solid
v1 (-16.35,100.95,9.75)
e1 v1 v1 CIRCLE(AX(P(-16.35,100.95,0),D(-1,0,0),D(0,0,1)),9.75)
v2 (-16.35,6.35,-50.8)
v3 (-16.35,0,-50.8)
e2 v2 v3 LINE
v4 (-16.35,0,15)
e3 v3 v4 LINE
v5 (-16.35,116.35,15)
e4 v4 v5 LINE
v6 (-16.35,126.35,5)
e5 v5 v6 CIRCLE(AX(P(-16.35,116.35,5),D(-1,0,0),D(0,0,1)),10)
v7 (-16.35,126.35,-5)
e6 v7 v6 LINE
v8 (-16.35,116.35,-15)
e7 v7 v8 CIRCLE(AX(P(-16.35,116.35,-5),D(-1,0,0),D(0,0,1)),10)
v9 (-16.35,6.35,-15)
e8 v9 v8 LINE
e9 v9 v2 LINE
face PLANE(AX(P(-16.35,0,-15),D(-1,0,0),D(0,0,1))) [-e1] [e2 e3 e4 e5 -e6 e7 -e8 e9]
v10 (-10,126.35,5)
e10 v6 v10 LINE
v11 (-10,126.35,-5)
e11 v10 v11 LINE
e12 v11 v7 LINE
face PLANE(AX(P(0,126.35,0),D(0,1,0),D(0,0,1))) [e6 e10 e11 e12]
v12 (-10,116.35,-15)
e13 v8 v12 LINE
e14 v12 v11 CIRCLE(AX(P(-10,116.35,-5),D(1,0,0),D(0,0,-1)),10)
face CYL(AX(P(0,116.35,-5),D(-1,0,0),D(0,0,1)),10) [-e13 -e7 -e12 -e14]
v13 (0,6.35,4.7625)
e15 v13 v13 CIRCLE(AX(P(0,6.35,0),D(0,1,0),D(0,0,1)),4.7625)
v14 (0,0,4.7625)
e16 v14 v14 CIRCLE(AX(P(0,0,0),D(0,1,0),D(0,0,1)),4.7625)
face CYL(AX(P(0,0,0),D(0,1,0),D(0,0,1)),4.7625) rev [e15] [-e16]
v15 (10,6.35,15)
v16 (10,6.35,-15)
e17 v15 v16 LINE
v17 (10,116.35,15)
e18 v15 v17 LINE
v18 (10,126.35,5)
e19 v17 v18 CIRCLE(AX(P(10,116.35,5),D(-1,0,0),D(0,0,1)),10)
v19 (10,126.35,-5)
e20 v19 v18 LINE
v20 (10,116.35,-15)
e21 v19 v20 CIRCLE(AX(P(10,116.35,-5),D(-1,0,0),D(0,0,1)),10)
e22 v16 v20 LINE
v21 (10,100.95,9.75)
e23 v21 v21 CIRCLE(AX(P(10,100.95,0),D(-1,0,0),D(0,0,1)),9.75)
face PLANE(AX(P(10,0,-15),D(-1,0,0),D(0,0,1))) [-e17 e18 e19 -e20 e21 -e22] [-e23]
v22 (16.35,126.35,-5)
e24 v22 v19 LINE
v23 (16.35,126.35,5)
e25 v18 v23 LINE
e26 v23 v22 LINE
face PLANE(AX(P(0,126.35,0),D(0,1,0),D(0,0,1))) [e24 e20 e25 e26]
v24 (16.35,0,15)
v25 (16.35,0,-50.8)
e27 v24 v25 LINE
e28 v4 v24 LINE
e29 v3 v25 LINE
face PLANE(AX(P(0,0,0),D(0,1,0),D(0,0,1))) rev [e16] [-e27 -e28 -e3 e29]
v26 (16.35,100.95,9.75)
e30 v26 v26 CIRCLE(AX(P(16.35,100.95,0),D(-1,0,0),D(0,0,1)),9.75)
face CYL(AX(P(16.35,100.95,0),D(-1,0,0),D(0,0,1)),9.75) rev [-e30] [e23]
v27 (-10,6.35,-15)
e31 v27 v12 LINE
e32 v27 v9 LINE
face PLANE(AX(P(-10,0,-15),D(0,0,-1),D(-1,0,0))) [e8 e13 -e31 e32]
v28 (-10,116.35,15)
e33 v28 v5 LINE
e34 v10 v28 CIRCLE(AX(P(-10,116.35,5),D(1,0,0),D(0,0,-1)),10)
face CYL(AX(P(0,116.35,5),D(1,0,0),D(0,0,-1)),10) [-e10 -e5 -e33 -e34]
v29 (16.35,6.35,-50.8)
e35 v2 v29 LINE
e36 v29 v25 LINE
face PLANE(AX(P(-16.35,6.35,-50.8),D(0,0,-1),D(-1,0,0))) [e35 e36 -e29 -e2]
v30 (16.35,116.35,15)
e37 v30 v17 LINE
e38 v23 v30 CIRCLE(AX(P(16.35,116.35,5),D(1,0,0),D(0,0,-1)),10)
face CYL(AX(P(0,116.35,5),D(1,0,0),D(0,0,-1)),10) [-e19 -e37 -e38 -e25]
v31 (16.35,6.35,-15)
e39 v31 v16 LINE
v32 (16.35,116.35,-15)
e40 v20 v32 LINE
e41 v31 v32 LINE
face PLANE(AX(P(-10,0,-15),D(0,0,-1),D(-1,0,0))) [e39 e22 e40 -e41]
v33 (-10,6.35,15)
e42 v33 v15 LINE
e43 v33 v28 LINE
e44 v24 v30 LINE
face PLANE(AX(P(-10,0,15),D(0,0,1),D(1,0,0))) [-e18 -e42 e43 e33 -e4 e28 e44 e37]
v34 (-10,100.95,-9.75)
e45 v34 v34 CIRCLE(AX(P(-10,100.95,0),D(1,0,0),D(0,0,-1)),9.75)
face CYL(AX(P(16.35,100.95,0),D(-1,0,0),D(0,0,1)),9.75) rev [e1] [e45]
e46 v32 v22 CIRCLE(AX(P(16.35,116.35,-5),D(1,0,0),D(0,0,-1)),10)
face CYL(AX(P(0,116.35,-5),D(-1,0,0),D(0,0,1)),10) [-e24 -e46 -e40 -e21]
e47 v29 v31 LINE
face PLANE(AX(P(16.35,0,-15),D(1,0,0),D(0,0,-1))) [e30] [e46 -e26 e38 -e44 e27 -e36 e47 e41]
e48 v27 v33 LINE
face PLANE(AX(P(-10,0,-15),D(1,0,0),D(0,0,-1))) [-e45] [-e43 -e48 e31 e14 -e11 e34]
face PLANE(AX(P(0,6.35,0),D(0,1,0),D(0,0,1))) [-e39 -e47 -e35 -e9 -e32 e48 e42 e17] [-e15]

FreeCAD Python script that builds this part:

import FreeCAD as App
import Part
import Sketcher

V = App.Vector


def edges_at(feature, points):
    """Names of the edges that pass closest to the given points."""
    edges = feature.Shape.Edges
    near = lambda p: min(range(len(edges)), key=lambda i: edges[i].distToShape(Part.Vertex(*p))[0])
    return sorted({f"Edge{near(p) + 1}" for p in points})

doc = App.newDocument("Part")
params = doc.addObject("Spreadsheet::Sheet", "Params")
for row, (alias, value) in enumerate([
    ("sketch1_diameter", "20 mm"),
    ("pad1_length", "6.35 mm"),
    ("sketch2_width", "20 mm"),
    ("sketch2_height", "30 mm"),
    ("pad2_length", "6.35 mm"),
    ("sketch3_height", "30 mm"),
    ("sketch3_width", "6.35 mm"),
    ("pad3_length", "120 mm"),
    ("pad3_length2", "6.35 mm"),
    ("sketch4_diameter", "19.5 mm"),
    ("fillet_radius", "10 mm"),
    ("sketch6_width", "32.7 mm"),
    ("sketch6_height", "35.8 mm"),
    ("pad4_length", "6.35 mm"),
], start=1):
    params.set(f"A{row}", alias)
    params.set(f"B{row}", "=" + value)
    params.setAlias(f"B{row}", alias)

body = doc.addObject("PartDesign::Body", "Body")

sketch1 = body.newObject("Sketcher::SketchObject", "Sketch")
sketch1.AttachmentSupport = (doc.getObject("XZ_Plane"), [""])
sketch1.MapMode = "FlatFace"
sketch1.addGeometry(Part.Circle(V(0, 0, 0), V(0, 0, 1), 10), False)
sketch1.addConstraint(Sketcher.Constraint("Coincident", 0, 3, -1, 1))
sketch1.addConstraint(Sketcher.Constraint("Diameter", 0, 20.0))
sketch1.setExpression("Constraints[1]", "Params.sketch1_diameter")
pad1 = body.newObject("PartDesign::Pad", "Pad")
pad1.Profile = sketch1
pad1.setExpression("Length", "Params.pad1_length")
pad1.Reversed = True

sketch2 = body.newObject("Sketcher::SketchObject", "Sketch001")
sketch2.AttachmentSupport = (doc.getObject("XZ_Plane"), [""])
sketch2.MapMode = "FlatFace"
sketch2.AttachmentOffset = App.Placement(V(0, 0, -6.35), App.Rotation())
sketch2.addGeometry(Part.LineSegment(V(-10, -15, 0), V(-10, 15, 0)), False)
sketch2.addGeometry(Part.LineSegment(V(-10, 15, 0), V(10, 15, 0)), False)
sketch2.addGeometry(Part.LineSegment(V(10, 15, 0), V(10, -15, 0)), False)
sketch2.addGeometry(Part.LineSegment(V(10, -15, 0), V(-10, -15, 0)), False)
sketch2.addConstraint(Sketcher.Constraint("Coincident", 0, 2, 1, 1))
sketch2.addConstraint(Sketcher.Constraint("Coincident", 1, 2, 2, 1))
sketch2.addConstraint(Sketcher.Constraint("Coincident", 2, 2, 3, 1))
sketch2.addConstraint(Sketcher.Constraint("Coincident", 3, 2, 0, 1))
sketch2.addConstraint(Sketcher.Constraint("Vertical", 0))
sketch2.addConstraint(Sketcher.Constraint("Horizontal", 1))
sketch2.addConstraint(Sketcher.Constraint("Vertical", 2))
sketch2.addConstraint(Sketcher.Constraint("Horizontal", 3))
sketch2.addConstraint(Sketcher.Constraint("Symmetric", 0, 2, 2, 2, -1, 1))
sketch2.addConstraint(Sketcher.Constraint("DistanceX", 1, 1, 1, 2, 20.0))
sketch2.addConstraint(Sketcher.Constraint("DistanceY", 0, 1, 0, 2, 30.0))
sketch2.setExpression("Constraints[9]", "Params.sketch2_width")
sketch2.setExpression("Constraints[10]", "Params.sketch2_height")
pad2 = body.newObject("PartDesign::Pad", "Pad001")
pad2.Profile = sketch2
pad2.setExpression("Length", "Params.pad2_length")

sketch3 = body.newObject("Sketcher::SketchObject", "Sketch002")
sketch3.AttachmentSupport = (doc.getObject("XZ_Plane"), [""])
sketch3.MapMode = "FlatFace"
sketch3.AttachmentOffset = App.Placement(V(0, 0, -6.35), App.Rotation())
sketch3.addGeometry(Part.LineSegment(V(-16.35, -15, 0), V(-16.35, 15, 0)), False)
sketch3.addGeometry(Part.LineSegment(V(-16.35, 15, 0), V(-10, 15, 0)), False)
sketch3.addGeometry(Part.LineSegment(V(-10, 15, 0), V(-10, -15, 0)), False)
sketch3.addGeometry(Part.LineSegment(V(-10, -15, 0), V(-16.35, -15, 0)), False)
sketch3.addGeometry(Part.LineSegment(V(10, -15, 0), V(10, 15, 0)), False)
sketch3.addGeometry(Part.LineSegment(V(10, 15, 0), V(16.35, 15, 0)), False)
sketch3.addGeometry(Part.LineSegment(V(16.35, 15, 0), V(16.35, -15, 0)), False)
sketch3.addGeometry(Part.LineSegment(V(16.35, -15, 0), V(10, -15, 0)), False)
sketch3.addConstraint(Sketcher.Constraint("Coincident", 0, 2, 1, 1))
sketch3.addConstraint(Sketcher.Constraint("Coincident", 1, 2, 2, 1))
sketch3.addConstraint(Sketcher.Constraint("Coincident", 2, 2, 3, 1))
sketch3.addConstraint(Sketcher.Constraint("Coincident", 3, 2, 0, 1))
sketch3.addConstraint(Sketcher.Constraint("Coincident", 4, 2, 5, 1))
sketch3.addConstraint(Sketcher.Constraint("Coincident", 5, 2, 6, 1))
sketch3.addConstraint(Sketcher.Constraint("Coincident", 6, 2, 7, 1))
sketch3.addConstraint(Sketcher.Constraint("Coincident", 7, 2, 4, 1))
sketch3.addConstraint(Sketcher.Constraint("Vertical", 0))
sketch3.addConstraint(Sketcher.Constraint("Horizontal", 1))
sketch3.addConstraint(Sketcher.Constraint("Vertical", 2))
sketch3.addConstraint(Sketcher.Constraint("Horizontal", 3))
sketch3.addConstraint(Sketcher.Constraint("Vertical", 4))
sketch3.addConstraint(Sketcher.Constraint("Horizontal", 5))
sketch3.addConstraint(Sketcher.Constraint("Vertical", 6))
sketch3.addConstraint(Sketcher.Constraint("Horizontal", 7))
sketch3.addConstraint(Sketcher.Constraint("Symmetric", 2, 2, 4, 2, -1, 1))
sketch3.addConstraint(Sketcher.Constraint("Symmetric", 0, 2, 6, 2, -1, 1))
sketch3.addConstraint(Sketcher.Constraint("Horizontal", 1, 2, 4, 2))
sketch3.addConstraint(Sketcher.Constraint("DistanceY", 0, 1, 0, 2, 30.0))
sketch3.addConstraint(Sketcher.Constraint("DistanceX", 1, 2, -1, 1, 10.0))
sketch3.addConstraint(Sketcher.Constraint("DistanceX", 1, 1, 1, 2, 6.35))
sketch3.setExpression("Constraints[19]", "Params.sketch3_height")
sketch3.setExpression("Constraints[21]", "Params.sketch3_width")
pad3 = body.newObject("PartDesign::Pad", "Pad002")
pad3.Profile = sketch3
pad3.Type = "TwoLengths"
pad3.setExpression("Length", "Params.pad3_length")
pad3.setExpression("Length2", "Params.pad3_length2")
pad3.Reversed = True

sketch4 = body.newObject("Sketcher::SketchObject", "Sketch003")
sketch4.AttachmentSupport = (doc.getObject("YZ_Plane"), [""])
sketch4.MapMode = "FlatFace"
sketch4.AttachmentOffset = App.Placement(V(0, 0, -16.35), App.Rotation())
sketch4.addGeometry(Part.Circle(V(100.95, 0, 0), V(0, 0, 1), 9.75), False)
sketch4.addConstraint(Sketcher.Constraint("PointOnObject", 0, 3, -1))
sketch4.addConstraint(Sketcher.Constraint("Diameter", 0, 19.5))
sketch4.addConstraint(Sketcher.Constraint("DistanceX", -1, 1, 0, 3, 100.95))
sketch4.setExpression("Constraints[1]", "Params.sketch4_diameter")
pocket1 = body.newObject("PartDesign::Pocket", "Pocket")
pocket1.Profile = sketch4
pocket1.Type = "ThroughAll"
pocket1.Reversed = True

sketch5 = body.newObject("Sketcher::SketchObject", "Sketch004")
sketch5.AttachmentSupport = (doc.getObject("XZ_Plane"), [""])
sketch5.MapMode = "FlatFace"
sketch5.AttachmentOffset = App.Placement(V(0, 0, -6.35), App.Rotation())
sketch5.addGeometry(Part.Circle(V(0, 0, 0), V(0, 0, 1), 4.7625), False)
sketch5.addConstraint(Sketcher.Constraint("Coincident", 0, 3, -1, 1))
sketch5.addConstraint(Sketcher.Constraint("Diameter", 0, 9.525))
pocket2 = body.newObject("PartDesign::Pocket", "Pocket001")
pocket2.Profile = sketch5
pocket2.Type = "ThroughAll"
pocket2.Reversed = True
doc.recompute()

fillet = body.newObject("PartDesign::Fillet", "Fillet")
fillet.Base = (pocket2, edges_at(pocket2, [
    (13.175, 126.35, -15),
    (13.175, 126.35, 15),
    (-13.175, 126.35, 15),
    (-13.175, 126.35, -15),
]))
fillet.setExpression("Radius", "Params.fillet_radius")

sketch6 = body.newObject("Sketcher::SketchObject", "Sketch005")
sketch6.AttachmentSupport = (doc.getObject("XZ_Plane"), [""])
sketch6.MapMode = "FlatFace"
sketch6.addGeometry(Part.LineSegment(V(-16.35, -15, 0), V(-16.35, -50.8, 0)), False)
sketch6.addGeometry(Part.LineSegment(V(-16.35, -50.8, 0), V(16.35, -50.8, 0)), False)
sketch6.addGeometry(Part.LineSegment(V(16.35, -50.8, 0), V(16.35, -15, 0)), False)
sketch6.addGeometry(Part.LineSegment(V(16.35, -15, 0), V(-16.35, -15, 0)), False)
sketch6.addConstraint(Sketcher.Constraint("Coincident", 0, 2, 1, 1))
sketch6.addConstraint(Sketcher.Constraint("Coincident", 1, 2, 2, 1))
sketch6.addConstraint(Sketcher.Constraint("Coincident", 2, 2, 3, 1))
sketch6.addConstraint(Sketcher.Constraint("Coincident", 3, 2, 0, 1))
sketch6.addConstraint(Sketcher.Constraint("Vertical", 0))
sketch6.addConstraint(Sketcher.Constraint("Horizontal", 1))
sketch6.addConstraint(Sketcher.Constraint("Vertical", 2))
sketch6.addConstraint(Sketcher.Constraint("Horizontal", 3))
sketch6.addConstraint(Sketcher.Constraint("DistanceX", 1, 1, 1, 2, 32.7))
sketch6.addConstraint(Sketcher.Constraint("DistanceY", 0, 2, 0, 1, 35.8))
sketch6.addConstraint(Sketcher.Constraint("DistanceY", 2, 2, -1, 1, 15.0))
sketch6.addConstraint(Sketcher.Constraint("DistanceX", 0, 2, -1, 1, 16.35))
sketch6.setExpression("Constraints[8]", "Params.sketch6_width")
sketch6.setExpression("Constraints[9]", "Params.sketch6_height")
pad4 = body.newObject("PartDesign::Pad", "Pad003")
pad4.Profile = sketch6
pad4.setExpression("Length", "Params.pad4_length")
pad4.Reversed = True

doc.recompute()
